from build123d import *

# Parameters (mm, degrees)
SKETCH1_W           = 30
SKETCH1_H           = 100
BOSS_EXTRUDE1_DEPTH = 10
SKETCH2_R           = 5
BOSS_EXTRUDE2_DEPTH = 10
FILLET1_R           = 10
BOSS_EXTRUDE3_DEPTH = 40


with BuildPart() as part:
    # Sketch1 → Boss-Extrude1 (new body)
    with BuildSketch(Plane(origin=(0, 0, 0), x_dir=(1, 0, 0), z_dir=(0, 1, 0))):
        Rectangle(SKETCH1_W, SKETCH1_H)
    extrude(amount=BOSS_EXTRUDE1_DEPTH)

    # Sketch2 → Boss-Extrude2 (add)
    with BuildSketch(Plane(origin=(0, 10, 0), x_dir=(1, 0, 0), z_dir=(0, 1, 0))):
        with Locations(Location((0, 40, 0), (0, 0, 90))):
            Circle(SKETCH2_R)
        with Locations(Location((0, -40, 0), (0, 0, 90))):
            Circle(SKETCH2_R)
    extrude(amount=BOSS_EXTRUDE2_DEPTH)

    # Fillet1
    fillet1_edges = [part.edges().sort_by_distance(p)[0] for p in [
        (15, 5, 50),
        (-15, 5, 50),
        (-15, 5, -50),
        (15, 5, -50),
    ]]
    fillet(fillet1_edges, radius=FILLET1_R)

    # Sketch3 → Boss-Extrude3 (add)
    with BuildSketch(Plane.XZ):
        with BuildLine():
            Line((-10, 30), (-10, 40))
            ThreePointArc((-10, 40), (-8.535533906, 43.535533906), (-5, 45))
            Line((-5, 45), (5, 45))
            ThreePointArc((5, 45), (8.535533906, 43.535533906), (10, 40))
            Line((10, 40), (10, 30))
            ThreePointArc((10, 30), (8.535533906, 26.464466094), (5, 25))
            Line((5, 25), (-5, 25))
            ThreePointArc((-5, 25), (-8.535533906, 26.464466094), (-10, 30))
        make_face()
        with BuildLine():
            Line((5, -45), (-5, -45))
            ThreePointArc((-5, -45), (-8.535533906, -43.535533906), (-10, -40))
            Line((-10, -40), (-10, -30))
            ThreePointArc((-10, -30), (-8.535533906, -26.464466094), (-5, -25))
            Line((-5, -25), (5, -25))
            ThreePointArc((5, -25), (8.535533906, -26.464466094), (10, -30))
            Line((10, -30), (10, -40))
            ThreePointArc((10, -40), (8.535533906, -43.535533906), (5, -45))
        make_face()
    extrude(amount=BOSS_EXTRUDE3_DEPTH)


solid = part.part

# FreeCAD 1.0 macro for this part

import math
import FreeCAD as App
import Part
import Sketcher


def edges_at(feature, points):
    """Names of the edges that pass closest to the given points."""
    edges = feature.Shape.Edges
    near = lambda p: min(range(len(edges)), key=lambda i: edges[i].distToShape(Part.Vertex(*p))[0])
    return sorted({f"Edge{near(p) + 1}" for p in points})

doc = App.newDocument("Part")
body = doc.addObject("PartDesign::Body", "Body")

# Sketch on XZ plane
sketch1 = body.newObject("Sketcher::SketchObject", "Sketch")
sketch1.AttachmentSupport = (doc.getObject("XZ_Plane"), [""])
sketch1.MapMode = "FlatFace"
sketch1.addGeometry([
    Part.LineSegment(App.Vector(-15, -50, 0), App.Vector(-15, 50, 0)),
    Part.LineSegment(App.Vector(-15, 50, 0), App.Vector(15, 50, 0)),
    Part.LineSegment(App.Vector(15, 50, 0), App.Vector(15, -50, 0)),
    Part.LineSegment(App.Vector(15, -50, 0), App.Vector(-15, -50, 0)),
], False)
sketch1.addConstraint([
    Sketcher.Constraint("Coincident", 0, 2, 1, 1),
    Sketcher.Constraint("Coincident", 1, 2, 2, 1),
    Sketcher.Constraint("Coincident", 2, 2, 3, 1),
    Sketcher.Constraint("Coincident", 3, 2, 0, 1),
    Sketcher.Constraint("Vertical", 0),
    Sketcher.Constraint("Horizontal", 1),
    Sketcher.Constraint("Vertical", 2),
    Sketcher.Constraint("Horizontal", 3),
    Sketcher.Constraint("Symmetric", 0, 2, 2, 2, -1, 1),
    Sketcher.Constraint("DistanceX", 1, 1, 1, 2, 30.0),
    Sketcher.Constraint("DistanceY", 0, 1, 0, 2, 100.0),
])
pad1 = body.newObject("PartDesign::Pad", "Pad")
pad1.Profile = sketch1
pad1.Length = 10
pad1.Reversed = True

# Sketch on XZ plane
sketch2 = body.newObject("Sketcher::SketchObject", "Sketch001")
sketch2.AttachmentSupport = (doc.getObject("XZ_Plane"), [""])
sketch2.MapMode = "FlatFace"
sketch2.AttachmentOffset = App.Placement(App.Vector(0, 0, -10), App.Rotation())
sketch2.addGeometry([
    Part.Circle(App.Vector(0, -40, 0), App.Vector(0, 0, 1), 5),
    Part.Circle(App.Vector(0, 40, 0), App.Vector(0, 0, 1), 5),
], False)
sketch2.addConstraint([
    Sketcher.Constraint("Equal", 0, 1),
    Sketcher.Constraint("Symmetric", 0, 3, 1, 3, -1, 1),
    Sketcher.Constraint("PointOnObject", 0, 3, -2),
    Sketcher.Constraint("Diameter", 0, 10.0),
    Sketcher.Constraint("DistanceY", 0, 3, -1, 1, 40.0),
])
pad2 = body.newObject("PartDesign::Pad", "Pad001")
pad2.Profile = sketch2
pad2.Length = 10
pad2.Reversed = True
doc.recompute()

fillet = body.newObject("PartDesign::Fillet", "Fillet")
fillet.Base = (pad2, edges_at(pad2, [
    (15, 5, 50),
    (-15, 5, 50),
    (-15, 5, -50),
    (15, 5, -50),
]))
fillet.Radius = 10

# Sketch on XZ plane
sketch3 = body.newObject("Sketcher::SketchObject", "Sketch002")
sketch3.AttachmentSupport = (doc.getObject("XZ_Plane"), [""])
sketch3.MapMode = "FlatFace"
sketch3.addGeometry([
    Part.LineSegment(App.Vector(-10, 40, 0), App.Vector(-10, 30, 0)),  # 0
    Part.ArcOfCircle(Part.Circle(App.Vector(-5, 30, 0), App.Vector(0, 0, 1), 5), math.radians(180), math.radians(270)),  # 1
    Part.LineSegment(App.Vector(-5, 25, 0), App.Vector(5, 25, 0)),  # 2
    Part.ArcOfCircle(Part.Circle(App.Vector(5, 30, 0), App.Vector(0, 0, 1), 5), math.radians(-90), math.radians(0)),  # 3
    Part.LineSegment(App.Vector(10, 30, 0), App.Vector(10, 40, 0)),  # 4
    Part.ArcOfCircle(Part.Circle(App.Vector(5, 40, 0), App.Vector(0, 0, 1), 5), math.radians(0), math.radians(90)),  # 5
    Part.LineSegment(App.Vector(5, 45, 0), App.Vector(-5, 45, 0)),  # 6
    Part.ArcOfCircle(Part.Circle(App.Vector(-5, 40, 0), App.Vector(0, 0, 1), 5), math.radians(90), math.radians(180)),  # 7
    Part.LineSegment(App.Vector(-5, -45, 0), App.Vector(5, -45, 0)),  # 8
    Part.ArcOfCircle(Part.Circle(App.Vector(5, -40, 0), App.Vector(0, 0, 1), 5), math.radians(-90), math.radians(0)),  # 9
    Part.LineSegment(App.Vector(10, -40, 0), App.Vector(10, -30, 0)),  # 10
    Part.ArcOfCircle(Part.Circle(App.Vector(5, -30, 0), App.Vector(0, 0, 1), 5), math.radians(0), math.radians(90)),  # 11
    Part.LineSegment(App.Vector(5, -25, 0), App.Vector(-5, -25, 0)),  # 12
    Part.ArcOfCircle(Part.Circle(App.Vector(-5, -30, 0), App.Vector(0, 0, 1), 5), math.radians(90), math.radians(180)),  # 13
    Part.LineSegment(App.Vector(-10, -30, 0), App.Vector(-10, -40, 0)),  # 14
    Part.ArcOfCircle(Part.Circle(App.Vector(-5, -40, 0), App.Vector(0, 0, 1), 5), math.radians(180), math.radians(270)),  # 15
], False)
sketch3.addConstraint([
    Sketcher.Constraint("Tangent", 0, 2, 1, 1),
    Sketcher.Constraint("Tangent", 1, 2, 2, 1),
    Sketcher.Constraint("Tangent", 2, 2, 3, 1),
    Sketcher.Constraint("Tangent", 3, 2, 4, 1),
    Sketcher.Constraint("Tangent", 4, 2, 5, 1),
    Sketcher.Constraint("Tangent", 5, 2, 6, 1),
    Sketcher.Constraint("Tangent", 6, 2, 7, 1),
    Sketcher.Constraint("Tangent", 7, 2, 0, 1),
    Sketcher.Constraint("Tangent", 8, 2, 9, 1),
    Sketcher.Constraint("Tangent", 9, 2, 10, 1),
    Sketcher.Constraint("Tangent", 10, 2, 11, 1),
    Sketcher.Constraint("Tangent", 11, 2, 12, 1),
    Sketcher.Constraint("Tangent", 12, 2, 13, 1),
    Sketcher.Constraint("Tangent", 13, 2, 14, 1),
    Sketcher.Constraint("Tangent", 14, 2, 15, 1),
    Sketcher.Constraint("Tangent", 15, 2, 8, 1),
    Sketcher.Constraint("Vertical", 0),
    Sketcher.Constraint("Horizontal", 2),
    Sketcher.Constraint("Vertical", 4),
    Sketcher.Constraint("Horizontal", 6),
    Sketcher.Constraint("Horizontal", 8),
    Sketcher.Constraint("Vertical", 10),
    Sketcher.Constraint("Horizontal", 12),
    Sketcher.Constraint("Vertical", 14),
    Sketcher.Constraint("Equal", 1, 3),
    Sketcher.Constraint("Equal", 3, 5),
    Sketcher.Constraint("Equal", 5, 7),
    Sketcher.Constraint("Equal", 7, 9),
    Sketcher.Constraint("Equal", 9, 11),
    Sketcher.Constraint("Equal", 11, 13),
    Sketcher.Constraint("Equal", 13, 15),
    Sketcher.Constraint("Symmetric", 7, 3, 9, 3, -1, 1),
    Sketcher.Constraint("Symmetric", 3, 3, 13, 3, -1, 1),
    Sketcher.Constraint("Vertical", 5, 3, 9, 3),
    Sketcher.Constraint("Equal", 12, 0),
    Sketcher.Constraint("Radius", 1, 5.0),
    Sketcher.Constraint("DistanceX", 2, 1, 2, 2, 10.0),
    Sketcher.Constraint("DistanceY", -1, 1, 1, 3, 30.0),
])
pad3 = body.newObject("PartDesign::Pad", "Pad002")
pad3.Profile = sketch3
pad3.Length = 40

doc.recompute()
